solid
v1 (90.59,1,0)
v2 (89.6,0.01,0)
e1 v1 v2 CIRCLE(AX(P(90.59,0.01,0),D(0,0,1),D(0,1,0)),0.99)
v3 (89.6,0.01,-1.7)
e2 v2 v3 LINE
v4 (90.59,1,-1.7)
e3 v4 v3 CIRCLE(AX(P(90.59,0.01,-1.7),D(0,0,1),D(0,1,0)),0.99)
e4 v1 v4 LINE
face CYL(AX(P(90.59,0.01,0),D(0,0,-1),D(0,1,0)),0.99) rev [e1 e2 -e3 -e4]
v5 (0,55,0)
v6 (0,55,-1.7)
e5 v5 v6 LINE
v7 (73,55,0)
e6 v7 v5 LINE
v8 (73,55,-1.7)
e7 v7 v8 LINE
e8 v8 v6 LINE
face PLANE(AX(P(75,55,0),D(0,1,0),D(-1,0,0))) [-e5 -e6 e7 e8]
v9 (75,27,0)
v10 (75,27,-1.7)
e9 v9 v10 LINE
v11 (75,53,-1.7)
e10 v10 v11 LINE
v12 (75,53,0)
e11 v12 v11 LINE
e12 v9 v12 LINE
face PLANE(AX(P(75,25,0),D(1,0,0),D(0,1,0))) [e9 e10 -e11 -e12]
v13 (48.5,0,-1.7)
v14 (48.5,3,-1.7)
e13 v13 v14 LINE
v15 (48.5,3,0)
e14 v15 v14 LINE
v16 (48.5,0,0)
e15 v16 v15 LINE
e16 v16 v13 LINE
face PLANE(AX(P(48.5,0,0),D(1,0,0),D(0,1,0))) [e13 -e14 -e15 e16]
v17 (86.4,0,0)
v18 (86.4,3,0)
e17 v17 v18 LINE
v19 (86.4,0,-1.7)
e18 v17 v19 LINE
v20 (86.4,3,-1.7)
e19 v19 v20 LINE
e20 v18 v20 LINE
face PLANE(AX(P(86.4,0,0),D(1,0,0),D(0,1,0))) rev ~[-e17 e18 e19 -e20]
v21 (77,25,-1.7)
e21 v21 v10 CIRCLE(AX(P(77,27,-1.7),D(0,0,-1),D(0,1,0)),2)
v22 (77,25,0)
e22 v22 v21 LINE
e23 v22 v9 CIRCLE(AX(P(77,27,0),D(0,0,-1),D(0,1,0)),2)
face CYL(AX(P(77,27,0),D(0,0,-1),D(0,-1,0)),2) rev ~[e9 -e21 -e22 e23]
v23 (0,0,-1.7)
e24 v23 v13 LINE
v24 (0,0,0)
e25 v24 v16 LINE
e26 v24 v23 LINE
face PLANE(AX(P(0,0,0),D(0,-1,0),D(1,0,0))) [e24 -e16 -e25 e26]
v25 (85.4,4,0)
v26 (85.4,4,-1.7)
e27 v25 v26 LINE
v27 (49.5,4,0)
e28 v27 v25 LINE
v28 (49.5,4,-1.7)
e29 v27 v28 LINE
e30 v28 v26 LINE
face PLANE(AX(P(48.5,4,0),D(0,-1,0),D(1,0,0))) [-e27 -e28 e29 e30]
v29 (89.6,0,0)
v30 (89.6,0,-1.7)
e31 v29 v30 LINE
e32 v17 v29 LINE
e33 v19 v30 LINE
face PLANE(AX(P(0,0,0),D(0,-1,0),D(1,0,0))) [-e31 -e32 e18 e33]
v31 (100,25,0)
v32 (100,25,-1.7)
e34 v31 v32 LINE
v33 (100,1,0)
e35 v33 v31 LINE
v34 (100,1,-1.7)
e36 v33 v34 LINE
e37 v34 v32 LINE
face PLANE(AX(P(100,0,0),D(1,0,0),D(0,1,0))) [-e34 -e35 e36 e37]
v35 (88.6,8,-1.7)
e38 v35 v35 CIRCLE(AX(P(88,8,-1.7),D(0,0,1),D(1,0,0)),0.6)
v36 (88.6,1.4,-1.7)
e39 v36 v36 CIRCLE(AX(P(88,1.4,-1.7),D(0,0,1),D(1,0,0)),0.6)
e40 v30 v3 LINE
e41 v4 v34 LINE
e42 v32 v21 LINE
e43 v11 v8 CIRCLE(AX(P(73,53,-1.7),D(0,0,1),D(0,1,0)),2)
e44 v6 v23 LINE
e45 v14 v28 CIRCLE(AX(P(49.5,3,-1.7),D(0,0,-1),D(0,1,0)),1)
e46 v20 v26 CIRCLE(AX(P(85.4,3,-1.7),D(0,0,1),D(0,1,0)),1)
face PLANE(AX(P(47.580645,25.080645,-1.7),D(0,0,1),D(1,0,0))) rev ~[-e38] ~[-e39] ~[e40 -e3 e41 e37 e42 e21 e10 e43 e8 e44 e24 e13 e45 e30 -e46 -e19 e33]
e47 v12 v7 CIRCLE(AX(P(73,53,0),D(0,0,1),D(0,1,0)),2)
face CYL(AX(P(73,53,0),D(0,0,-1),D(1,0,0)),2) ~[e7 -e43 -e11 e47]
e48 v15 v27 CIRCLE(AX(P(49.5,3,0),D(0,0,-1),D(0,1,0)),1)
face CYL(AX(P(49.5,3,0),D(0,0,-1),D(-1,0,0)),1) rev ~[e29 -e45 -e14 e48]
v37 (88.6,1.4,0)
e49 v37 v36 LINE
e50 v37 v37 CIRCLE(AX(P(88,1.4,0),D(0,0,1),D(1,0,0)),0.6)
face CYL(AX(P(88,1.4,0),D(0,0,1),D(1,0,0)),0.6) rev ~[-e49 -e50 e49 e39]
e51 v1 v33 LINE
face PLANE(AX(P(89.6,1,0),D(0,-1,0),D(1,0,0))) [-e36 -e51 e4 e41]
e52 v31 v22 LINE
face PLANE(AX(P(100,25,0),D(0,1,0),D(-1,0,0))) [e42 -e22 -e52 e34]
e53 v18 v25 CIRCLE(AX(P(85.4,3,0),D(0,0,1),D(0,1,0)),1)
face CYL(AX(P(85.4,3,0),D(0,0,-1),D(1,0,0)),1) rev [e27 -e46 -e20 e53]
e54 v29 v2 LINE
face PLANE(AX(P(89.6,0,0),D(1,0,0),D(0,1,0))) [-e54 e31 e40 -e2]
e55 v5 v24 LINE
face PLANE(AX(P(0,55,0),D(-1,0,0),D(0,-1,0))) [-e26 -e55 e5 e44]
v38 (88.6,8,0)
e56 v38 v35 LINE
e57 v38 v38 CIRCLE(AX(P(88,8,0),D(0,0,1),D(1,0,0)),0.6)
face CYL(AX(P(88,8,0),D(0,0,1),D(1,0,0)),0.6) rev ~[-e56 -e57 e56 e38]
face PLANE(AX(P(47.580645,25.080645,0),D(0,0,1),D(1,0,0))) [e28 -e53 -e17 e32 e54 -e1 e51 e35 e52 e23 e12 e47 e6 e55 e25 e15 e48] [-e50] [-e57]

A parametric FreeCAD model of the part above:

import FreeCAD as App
import Part
import Sketcher
Q = App.Units.Quantity


def edges_at(feature, points):
    """Names of the edges that pass closest to the given points."""
    edges = feature.Shape.Edges
    near = lambda p: min(range(len(edges)), key=lambda i: edges[i].distToShape(Part.Vertex(*p))[0])
    return sorted({f"Edge{near(p) + 1}" for p in points})

doc = App.newDocument("Part")
body = doc.addObject("PartDesign::Body", "Body")

# Sketch on XY plane
sketch1 = body.newObject("Sketcher::SketchObject", "Sketch")
sketch1.AttachmentSupport = (doc.getObject("XY_Plane"), [""])
sketch1.MapMode = "FlatFace"
sketch1.addGeometry(Part.LineSegment(App.Vector(0, 0, 0), App.Vector(100, 0, 0)), False)
sketch1.addGeometry(Part.LineSegment(App.Vector(100, 0, 0), App.Vector(100, 25, 0)), False)
sketch1.addGeometry(Part.LineSegment(App.Vector(100, 25, 0), App.Vector(75, 25, 0)), False)
sketch1.addGeometry(Part.LineSegment(App.Vector(75, 25, 0), App.Vector(75, 55, 0)), False)
sketch1.addGeometry(Part.LineSegment(App.Vector(75, 55, 0), App.Vector(0, 55, 0)), False)
sketch1.addGeometry(Part.LineSegment(App.Vector(0, 55, 0), App.Vector(0, 0, 0)), False)
sketch1.addConstraint(Sketcher.Constraint("Coincident", 0, 2, 1, 1))
sketch1.addConstraint(Sketcher.Constraint("Coincident", 1, 2, 2, 1))
sketch1.addConstraint(Sketcher.Constraint("Coincident", 2, 2, 3, 1))
sketch1.addConstraint(Sketcher.Constraint("Coincident", 3, 2, 4, 1))
sketch1.addConstraint(Sketcher.Constraint("Coincident", 4, 2, 5, 1))
sketch1.addConstraint(Sketcher.Constraint("Coincident", 5, 2, 0, 1))
sketch1.addConstraint(Sketcher.Constraint("Horizontal", 0))
sketch1.addConstraint(Sketcher.Constraint("Vertical", 1))
sketch1.addConstraint(Sketcher.Constraint("Horizontal", 2))
sketch1.addConstraint(Sketcher.Constraint("Vertical", 3))
sketch1.addConstraint(Sketcher.Constraint("Horizontal", 4))
sketch1.addConstraint(Sketcher.Constraint("Vertical", 5))
sketch1.addConstraint(Sketcher.Constraint("Coincident", 5, 2, -1, 1))
sketch1.addConstraint(Sketcher.Constraint("Equal", 2, 1))
sketch1.addConstraint(Sketcher.Constraint("DistanceX", 0, 1, 0, 2, Q("100 mm")))
sketch1.addConstraint(Sketcher.Constraint("DistanceX", 2, 2, 2, 1, Q("25 mm")))
sketch1.addConstraint(Sketcher.Constraint("DistanceY", 3, 1, 3, 2, Q("30 mm")))
pad1 = body.newObject("PartDesign::Pad", "Pad")
pad1.Profile = sketch1
pad1.Length = 1.7
pad1.Reversed = True

# Sketch on XY plane
sketch2 = body.newObject("Sketcher::SketchObject", "Sketch001")
sketch2.AttachmentSupport = (doc.getObject("XY_Plane"), [""])
sketch2.MapMode = "FlatFace"
sketch2.addGeometry(Part.LineSegment(App.Vector(48.5, 4, 0), App.Vector(48.5, 0, 0)), False)
sketch2.addGeometry(Part.LineSegment(App.Vector(48.5, 0, 0), App.Vector(86.4, 0, 0)), False)
sketch2.addGeometry(Part.LineSegment(App.Vector(86.4, 0, 0), App.Vector(86.4, 4, 0)), False)
sketch2.addGeometry(Part.LineSegment(App.Vector(86.4, 4, 0), App.Vector(48.5, 4, 0)), False)
sketch2.addGeometry(Part.LineSegment(App.Vector(89.6, 1, 0), App.Vector(89.6, 0, 0)), False)
sketch2.addGeometry(Part.LineSegment(App.Vector(89.6, 0, 0), App.Vector(100, 0, 0)), False)
sketch2.addGeometry(Part.LineSegment(App.Vector(100, 0, 0), App.Vector(100, 1, 0)), False)
sketch2.addGeometry(Part.LineSegment(App.Vector(100, 1, 0), App.Vector(89.6, 1, 0)), False)
sketch2.addConstraint(Sketcher.Constraint("Coincident", 0, 2, 1, 1))
sketch2.addConstraint(Sketcher.Constraint("Coincident", 1, 2, 2, 1))
sketch2.addConstraint(Sketcher.Constraint("Coincident", 2, 2, 3, 1))
sketch2.addConstraint(Sketcher.Constraint("Coincident", 3, 2, 0, 1))
sketch2.addConstraint(Sketcher.Constraint("Coincident", 4, 2, 5, 1))
sketch2.addConstraint(Sketcher.Constraint("Coincident", 5, 2, 6, 1))
sketch2.addConstraint(Sketcher.Constraint("Coincident", 6, 2, 7, 1))
sketch2.addConstraint(Sketcher.Constraint("Coincident", 7, 2, 4, 1))
sketch2.addConstraint(Sketcher.Constraint("Vertical", 0))
sketch2.addConstraint(Sketcher.Constraint("Horizontal", 1))
sketch2.addConstraint(Sketcher.Constraint("Vertical", 2))
sketch2.addConstraint(Sketcher.Constraint("Horizontal", 3))
sketch2.addConstraint(Sketcher.Constraint("Vertical", 4))
sketch2.addConstraint(Sketcher.Constraint("Horizontal", 5))
sketch2.addConstraint(Sketcher.Constraint("Vertical", 6))
sketch2.addConstraint(Sketcher.Constraint("Horizontal", 7))
sketch2.addConstraint(Sketcher.Constraint("PointOnObject", 0, 2, -1))
sketch2.addConstraint(Sketcher.Constraint("PointOnObject", 4, 2, -1))
sketch2.addConstraint(Sketcher.Constraint("DistanceY", 0, 2, 0, 1, Q("4 mm")))
sketch2.addConstraint(Sketcher.Constraint("DistanceY", 4, 2, 4, 1, Q("1 mm")))
sketch2.addConstraint(Sketcher.Constraint("DistanceX", 1, 1, 1, 2, Q("37.9 mm")))
sketch2.addConstraint(Sketcher.Constraint("DistanceX", 5, 1, 5, 2, Q("10.4 mm")))
sketch2.addConstraint(Sketcher.Constraint("DistanceX", -1, 1, 5, 2, Q("100 mm")))
sketch2.addConstraint(Sketcher.Constraint("DistanceX", -1, 1, 0, 2, Q("48.5 mm")))
pocket1 = body.newObject("PartDesign::Pocket", "Pocket")
pocket1.Profile = sketch2
pocket1.Type = "ThroughAll"
doc.recompute()

fillet = body.newObject("PartDesign::Fillet", "Fillet")
fillet.Base = (pocket1, edges_at(pocket1, [(48.5, 4, -0.85), (86.4, 4, -0.85)]))
fillet.Radius = 1
doc.recompute()

fillet2 = body.newObject("PartDesign::Fillet", "Fillet001")
fillet2.Base = (fillet, edges_at(fillet, [(75, 55, -0.85), (75, 25, -0.85)]))
fillet2.Radius = 2
doc.recompute()

fillet3 = body.newObject("PartDesign::Fillet", "Fillet002")
fillet3.Base = (fillet2, edges_at(fillet2, [(89.6, 1, -0.85)]))
fillet3.Radius = 0.99

# Sketch on XY plane
sketch3 = body.newObject("Sketcher::SketchObject", "Sketch002")
sketch3.AttachmentSupport = (doc.getObject("XY_Plane"), [""])
sketch3.MapMode = "FlatFace"
sketch3.addGeometry(Part.Circle(App.Vector(88, 1.4, 0), App.Vector(0, 0, 1), 0.6), False)
sketch3.addGeometry(Part.Circle(App.Vector(88, 8, 0), App.Vector(0, 0, 1), 0.6), False)
sketch3.addConstraint(Sketcher.Constraint("Equal", 0, 1))
sketch3.addConstraint(Sketcher.Constraint("Vertical", 0, 3, 1, 3))
sketch3.addConstraint(Sketcher.Constraint("Diameter", 0, Q("1.2 mm")))
sketch3.addConstraint(Sketcher.Constraint("DistanceX", -1, 1, 0, 3, Q("88 mm")))
sketch3.addConstraint(Sketcher.Constraint("DistanceY", -1, 1, 1, 3, Q("8 mm")))
sketch3.addConstraint(Sketcher.Constraint("DistanceY", -1, 1, 0, 3, Q("1.4 mm")))
pocket2 = body.newObject("PartDesign::Pocket", "Pocket001")
pocket2.Profile = sketch3
pocket2.Length = 25

doc.recompute()
